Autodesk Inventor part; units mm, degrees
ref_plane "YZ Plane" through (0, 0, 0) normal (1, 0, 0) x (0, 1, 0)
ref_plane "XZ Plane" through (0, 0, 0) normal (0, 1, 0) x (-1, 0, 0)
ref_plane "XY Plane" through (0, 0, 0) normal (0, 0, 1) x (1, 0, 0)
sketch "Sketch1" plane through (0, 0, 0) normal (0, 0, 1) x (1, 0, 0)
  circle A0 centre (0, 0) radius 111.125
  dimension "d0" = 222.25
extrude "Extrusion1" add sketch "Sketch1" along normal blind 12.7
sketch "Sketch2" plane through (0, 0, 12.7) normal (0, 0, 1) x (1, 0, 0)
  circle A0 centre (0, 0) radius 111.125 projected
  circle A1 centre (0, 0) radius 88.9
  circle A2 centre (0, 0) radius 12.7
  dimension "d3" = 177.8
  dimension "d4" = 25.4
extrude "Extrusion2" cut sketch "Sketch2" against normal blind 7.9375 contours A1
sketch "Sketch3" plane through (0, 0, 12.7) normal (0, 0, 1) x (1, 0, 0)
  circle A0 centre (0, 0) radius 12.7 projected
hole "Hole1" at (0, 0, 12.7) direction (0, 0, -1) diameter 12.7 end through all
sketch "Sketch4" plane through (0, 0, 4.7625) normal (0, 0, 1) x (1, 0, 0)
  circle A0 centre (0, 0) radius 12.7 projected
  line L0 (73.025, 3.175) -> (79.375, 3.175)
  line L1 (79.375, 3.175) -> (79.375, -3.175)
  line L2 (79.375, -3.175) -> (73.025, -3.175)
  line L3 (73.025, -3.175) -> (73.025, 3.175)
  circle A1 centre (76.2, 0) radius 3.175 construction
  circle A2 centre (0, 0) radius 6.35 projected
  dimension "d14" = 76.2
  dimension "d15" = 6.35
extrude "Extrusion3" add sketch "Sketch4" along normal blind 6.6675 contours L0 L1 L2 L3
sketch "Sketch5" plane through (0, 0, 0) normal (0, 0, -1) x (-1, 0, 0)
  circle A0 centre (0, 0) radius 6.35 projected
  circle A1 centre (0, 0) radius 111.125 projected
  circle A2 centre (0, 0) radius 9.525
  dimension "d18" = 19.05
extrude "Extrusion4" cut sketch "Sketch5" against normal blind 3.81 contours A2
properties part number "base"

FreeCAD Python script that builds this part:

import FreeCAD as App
import Part
import Sketcher

V = App.Vector
Q = App.Units.Quantity


def add_polygon(sketch, points):
    """Adds a closed chain of lines whose ends are joined by coincident constraints."""
    first, n = sketch.GeometryCount, len(points)
    for a, b in zip(points, points[1:] + points[:1]):
        sketch.addGeometry(Part.LineSegment(App.Vector(*a, 0), App.Vector(*b, 0)), False)
    for i in range(n):
        sketch.addConstraint(Sketcher.Constraint("Coincident", first + i, 2, first + (i + 1) % n, 1))

doc = App.newDocument("Part")
params = doc.addObject("Spreadsheet::Sheet", "Params")
for row, (alias, value) in enumerate([
    ("sketch1_diameter", "8.75 in"),
    ("pad1_length", "0.5 in"),
    ("sketch2_diameter", "7 in"),
    ("sketch2_diameter2", "1 in"),
    ("pocket1_length", "0.3125 in"),
    ("sketch3_diameter", "0.5 in"),
    ("hole_diameter", "0.5 in"),
    ("sketch4_width", "0.25 in"),
    ("pad2_length", "0.2625 in"),
    ("sketch5_diameter", "0.75 in"),
    ("sketch5_diameter2", "0.5 in"),
    ("pocket2_length", "0.15 in"),
], start=1):
    params.set(f"A{row}", alias)
    params.set(f"B{row}", "=" + value)
    params.setAlias(f"B{row}", alias)

body = doc.addObject("PartDesign::Body", "Body")

sketch1 = body.newObject("Sketcher::SketchObject", "Sketch")
sketch1.AttachmentSupport = (doc.getObject("XY_Plane"), [""])
sketch1.MapMode = "FlatFace"
sketch1.addGeometry(Part.Circle(V(0, 0, 0), V(0, 0, 1), 111.125), False)
sketch1.addConstraint(Sketcher.Constraint("Coincident", 0, 3, -1, 1))
sketch1.addConstraint(Sketcher.Constraint("Diameter", 0, Q("8.75 in")))
sketch1.setExpression("Constraints[1]", "Params.sketch1_diameter")
pad1 = body.newObject("PartDesign::Pad", "Pad")
pad1.Profile = sketch1
pad1.setExpression("Length", "Params.pad1_length")

sketch2 = body.newObject("Sketcher::SketchObject", "Sketch001")
sketch2.AttachmentSupport = (doc.getObject("XY_Plane"), [""])
sketch2.MapMode = "FlatFace"
sketch2.AttachmentOffset = App.Placement(V(0, 0, 0.5 * 25.4), App.Rotation())
sketch2.addGeometry(Part.Circle(V(0, 0, 0), V(0, 0, 1), 88.9), False)
sketch2.addGeometry(Part.Circle(V(0, 0, 0), V(0, 0, 1), 12.7), False)
sketch2.addConstraint(Sketcher.Constraint("Coincident", 0, 3, -1, 1))
sketch2.addConstraint(Sketcher.Constraint("Coincident", 1, 3, -1, 1))
sketch2.addConstraint(Sketcher.Constraint("Diameter", 0, Q("7 in")))
sketch2.addConstraint(Sketcher.Constraint("Diameter", 1, Q("1 in")))
sketch2.setExpression("Constraints[2]", "Params.sketch2_diameter")
sketch2.setExpression("Constraints[3]", "Params.sketch2_diameter2")
pocket1 = body.newObject("PartDesign::Pocket", "Pocket")
pocket1.Profile = sketch2
pocket1.setExpression("Length", "Params.pocket1_length")

sketch3 = body.newObject("Sketcher::SketchObject", "Sketch002")
sketch3.AttachmentSupport = (doc.getObject("XY_Plane"), [""])
sketch3.MapMode = "FlatFace"
sketch3.AttachmentOffset = App.Placement(V(0, 0, 0.5 * 25.4), App.Rotation())
sketch3.addGeometry(Part.Circle(V(0, 0, 0), V(0, 0, 1), 6.35), False)
sketch3.addConstraint(Sketcher.Constraint("Coincident", 0, 3, -1, 1))
sketch3.addConstraint(Sketcher.Constraint("Diameter", 0, Q("0.5 in")))
sketch3.setExpression("Constraints[1]", "Params.sketch3_diameter")
doc.recompute()
hole = body.newObject("PartDesign::Hole", "Hole")
hole.Profile = sketch3
hole.ThreadType = "None"
hole.setExpression("Diameter", "Params.hole_diameter")
hole.DepthType = "ThroughAll"

sketch4 = body.newObject("Sketcher::SketchObject", "Sketch003")
sketch4.AttachmentSupport = (doc.getObject("XY_Plane"), [""])
sketch4.MapMode = "FlatFace"
sketch4.AttachmentOffset = App.Placement(V(0, 0, 0.1875 * 25.4), App.Rotation())
add_polygon(sketch4, [(79.375, 3.175), (73.025, 3.175), (73.025, -3.175), (79.375, -3.175)])
sketch4.addConstraint(Sketcher.Constraint("Horizontal", 0))
sketch4.addConstraint(Sketcher.Constraint("Vertical", 1))
sketch4.addConstraint(Sketcher.Constraint("Horizontal", 2))
sketch4.addConstraint(Sketcher.Constraint("Vertical", 3))
sketch4.addConstraint(Sketcher.Constraint("Equal", 2, 1))
sketch4.addConstraint(Sketcher.Constraint("DistanceX", 0, 2, 0, 1, Q("0.25 in")))
sketch4.addConstraint(Sketcher.Constraint("DistanceX", -1, 1, 0, 2, Q("2.875 in")))
sketch4.addConstraint(Sketcher.Constraint("DistanceY", -1, 1, 0, 2, Q("0.125 in")))
sketch4.setExpression("Constraints[9]", "Params.sketch4_width")
pad2 = body.newObject("PartDesign::Pad", "Pad001")
pad2.Profile = sketch4
pad2.setExpression("Length", "Params.pad2_length")

sketch5 = body.newObject("Sketcher::SketchObject", "Sketch004")
sketch5.AttachmentSupport = (doc.getObject("XY_Plane"), [""])
sketch5.MapMode = "FlatFace"
sketch5.addGeometry(Part.Circle(V(0, 0, 0), V(0, 0, 1), 9.525), False)
sketch5.addGeometry(Part.Circle(V(0, 0, 0), V(0, 0, 1), 6.35), False)
sketch5.addConstraint(Sketcher.Constraint("Coincident", 0, 3, -1, 1))
sketch5.addConstraint(Sketcher.Constraint("Coincident", 1, 3, -1, 1))
sketch5.addConstraint(Sketcher.Constraint("Diameter", 0, Q("0.75 in")))
sketch5.addConstraint(Sketcher.Constraint("Diameter", 1, Q("0.5 in")))
sketch5.setExpression("Constraints[2]", "Params.sketch5_diameter")
sketch5.setExpression("Constraints[3]", "Params.sketch5_diameter2")
pocket2 = body.newObject("PartDesign::Pocket", "Pocket001")
pocket2.Profile = sketch5
pocket2.setExpression("Length", "Params.pocket2_length")
pocket2.Reversed = True

doc.recompute()
